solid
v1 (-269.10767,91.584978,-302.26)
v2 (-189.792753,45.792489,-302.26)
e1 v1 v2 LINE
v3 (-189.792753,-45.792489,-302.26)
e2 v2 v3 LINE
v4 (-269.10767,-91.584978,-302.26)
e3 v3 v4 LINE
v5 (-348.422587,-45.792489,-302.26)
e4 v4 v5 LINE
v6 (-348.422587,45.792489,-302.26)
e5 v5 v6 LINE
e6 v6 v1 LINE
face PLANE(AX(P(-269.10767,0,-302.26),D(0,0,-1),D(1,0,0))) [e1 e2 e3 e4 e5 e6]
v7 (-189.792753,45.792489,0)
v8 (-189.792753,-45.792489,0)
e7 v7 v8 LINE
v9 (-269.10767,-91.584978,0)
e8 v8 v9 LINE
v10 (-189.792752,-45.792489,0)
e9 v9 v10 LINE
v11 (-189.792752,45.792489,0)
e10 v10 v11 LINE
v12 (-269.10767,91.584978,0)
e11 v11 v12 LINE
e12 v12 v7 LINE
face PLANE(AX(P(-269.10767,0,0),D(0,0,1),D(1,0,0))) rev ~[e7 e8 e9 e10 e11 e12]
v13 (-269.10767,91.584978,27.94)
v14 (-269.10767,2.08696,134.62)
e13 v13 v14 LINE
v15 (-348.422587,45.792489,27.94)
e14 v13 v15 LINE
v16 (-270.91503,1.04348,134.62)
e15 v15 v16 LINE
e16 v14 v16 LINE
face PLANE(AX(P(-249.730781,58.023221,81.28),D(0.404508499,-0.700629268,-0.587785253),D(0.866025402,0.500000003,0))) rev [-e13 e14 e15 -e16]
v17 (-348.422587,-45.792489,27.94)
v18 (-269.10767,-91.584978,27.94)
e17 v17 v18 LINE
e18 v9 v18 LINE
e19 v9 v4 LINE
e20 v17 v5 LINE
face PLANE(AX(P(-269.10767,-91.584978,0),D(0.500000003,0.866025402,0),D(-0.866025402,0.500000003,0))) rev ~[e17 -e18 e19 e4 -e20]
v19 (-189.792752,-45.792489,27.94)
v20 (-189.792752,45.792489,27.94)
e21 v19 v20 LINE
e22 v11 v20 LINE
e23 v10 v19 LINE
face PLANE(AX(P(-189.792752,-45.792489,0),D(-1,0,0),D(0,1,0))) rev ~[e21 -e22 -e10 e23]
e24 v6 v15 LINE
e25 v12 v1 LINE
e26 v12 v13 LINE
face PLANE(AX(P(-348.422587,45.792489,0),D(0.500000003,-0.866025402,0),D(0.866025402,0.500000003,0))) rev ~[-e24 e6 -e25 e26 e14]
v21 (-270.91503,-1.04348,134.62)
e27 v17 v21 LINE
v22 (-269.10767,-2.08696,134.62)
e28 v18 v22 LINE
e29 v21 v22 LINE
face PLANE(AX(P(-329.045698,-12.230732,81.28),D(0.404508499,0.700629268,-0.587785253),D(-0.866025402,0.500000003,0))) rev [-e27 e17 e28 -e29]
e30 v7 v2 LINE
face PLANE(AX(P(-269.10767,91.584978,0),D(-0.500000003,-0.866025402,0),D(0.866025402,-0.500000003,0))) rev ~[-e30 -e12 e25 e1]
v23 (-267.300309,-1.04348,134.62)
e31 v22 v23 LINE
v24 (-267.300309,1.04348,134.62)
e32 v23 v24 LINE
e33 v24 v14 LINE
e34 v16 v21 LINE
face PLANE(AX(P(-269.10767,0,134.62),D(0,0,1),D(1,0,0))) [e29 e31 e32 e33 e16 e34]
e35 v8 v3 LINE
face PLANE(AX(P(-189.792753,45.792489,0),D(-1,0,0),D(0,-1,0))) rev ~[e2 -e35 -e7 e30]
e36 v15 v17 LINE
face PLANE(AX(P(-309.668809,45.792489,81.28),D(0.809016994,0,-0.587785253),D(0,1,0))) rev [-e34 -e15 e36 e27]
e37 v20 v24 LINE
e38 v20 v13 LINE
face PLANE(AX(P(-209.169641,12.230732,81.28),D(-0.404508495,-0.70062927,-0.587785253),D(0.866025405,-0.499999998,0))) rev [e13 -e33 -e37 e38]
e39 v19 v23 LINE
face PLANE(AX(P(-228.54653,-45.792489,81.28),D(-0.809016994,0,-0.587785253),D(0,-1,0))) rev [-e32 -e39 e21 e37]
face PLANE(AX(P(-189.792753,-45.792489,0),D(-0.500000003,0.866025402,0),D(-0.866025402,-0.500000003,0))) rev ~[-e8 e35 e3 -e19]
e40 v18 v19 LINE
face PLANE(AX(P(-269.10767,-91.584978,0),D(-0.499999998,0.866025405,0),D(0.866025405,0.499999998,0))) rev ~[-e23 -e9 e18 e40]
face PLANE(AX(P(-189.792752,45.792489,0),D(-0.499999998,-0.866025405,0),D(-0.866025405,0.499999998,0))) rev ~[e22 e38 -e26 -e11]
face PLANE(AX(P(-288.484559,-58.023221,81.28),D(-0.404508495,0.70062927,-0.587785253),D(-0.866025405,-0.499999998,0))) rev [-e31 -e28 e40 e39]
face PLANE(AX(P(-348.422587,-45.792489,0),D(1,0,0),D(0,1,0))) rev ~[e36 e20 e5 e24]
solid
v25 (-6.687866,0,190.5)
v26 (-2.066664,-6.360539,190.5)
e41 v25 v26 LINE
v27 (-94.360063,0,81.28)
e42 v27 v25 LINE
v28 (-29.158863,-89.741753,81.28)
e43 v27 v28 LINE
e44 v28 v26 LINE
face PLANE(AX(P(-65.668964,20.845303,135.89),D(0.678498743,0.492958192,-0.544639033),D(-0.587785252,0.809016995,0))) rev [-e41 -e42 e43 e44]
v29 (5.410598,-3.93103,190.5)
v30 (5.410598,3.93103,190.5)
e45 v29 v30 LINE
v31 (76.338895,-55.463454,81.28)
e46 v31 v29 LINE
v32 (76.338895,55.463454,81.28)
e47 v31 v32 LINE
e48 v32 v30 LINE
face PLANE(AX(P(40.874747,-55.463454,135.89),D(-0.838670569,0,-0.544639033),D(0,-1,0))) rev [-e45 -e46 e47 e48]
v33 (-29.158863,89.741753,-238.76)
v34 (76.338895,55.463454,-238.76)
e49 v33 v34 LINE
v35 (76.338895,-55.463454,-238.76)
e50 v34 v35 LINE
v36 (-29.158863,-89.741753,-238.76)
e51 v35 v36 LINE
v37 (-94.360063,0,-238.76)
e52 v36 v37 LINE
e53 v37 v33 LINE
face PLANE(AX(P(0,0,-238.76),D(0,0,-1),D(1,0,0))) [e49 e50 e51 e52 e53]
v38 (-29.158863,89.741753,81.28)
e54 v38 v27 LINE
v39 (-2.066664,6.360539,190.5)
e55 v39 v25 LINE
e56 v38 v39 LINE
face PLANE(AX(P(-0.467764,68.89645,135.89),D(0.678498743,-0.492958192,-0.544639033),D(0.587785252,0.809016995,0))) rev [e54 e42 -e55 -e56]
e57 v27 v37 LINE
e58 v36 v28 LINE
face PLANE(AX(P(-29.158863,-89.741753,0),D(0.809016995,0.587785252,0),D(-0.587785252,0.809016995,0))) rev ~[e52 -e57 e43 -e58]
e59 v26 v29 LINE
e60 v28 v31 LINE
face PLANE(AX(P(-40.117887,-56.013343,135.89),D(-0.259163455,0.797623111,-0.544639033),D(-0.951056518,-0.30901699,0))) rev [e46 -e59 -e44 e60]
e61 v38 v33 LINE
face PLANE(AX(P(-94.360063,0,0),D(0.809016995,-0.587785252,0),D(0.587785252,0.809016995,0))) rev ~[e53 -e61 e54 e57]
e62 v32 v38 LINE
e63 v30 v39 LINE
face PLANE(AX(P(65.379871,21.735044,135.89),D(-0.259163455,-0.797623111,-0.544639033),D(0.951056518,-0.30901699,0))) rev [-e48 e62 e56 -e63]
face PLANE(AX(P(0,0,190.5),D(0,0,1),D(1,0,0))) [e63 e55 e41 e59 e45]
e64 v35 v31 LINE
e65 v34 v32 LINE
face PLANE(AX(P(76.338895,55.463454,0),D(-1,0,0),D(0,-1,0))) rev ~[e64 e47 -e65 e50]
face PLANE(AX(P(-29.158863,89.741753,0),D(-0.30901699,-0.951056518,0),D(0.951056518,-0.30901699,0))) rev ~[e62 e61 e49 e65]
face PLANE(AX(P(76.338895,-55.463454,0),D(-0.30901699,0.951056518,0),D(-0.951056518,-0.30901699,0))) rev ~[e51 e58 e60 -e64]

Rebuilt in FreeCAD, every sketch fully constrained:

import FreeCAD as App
import Part
import Sketcher
from FreeCAD import Vector
Q = App.Units.Quantity


def edges_at(feature, points):
    """Names of the edges that pass closest to the given points."""
    edges = feature.Shape.Edges
    near = lambda p: min(range(len(edges)), key=lambda i: edges[i].distToShape(Part.Vertex(*p))[0])
    return sorted({f"Edge{near(p) + 1}" for p in points})


def add_polygon(sketch, points):
    """Adds a closed chain of lines whose ends are joined by coincident constraints."""
    first, n = sketch.GeometryCount, len(points)
    for a, b in zip(points, points[1:] + points[:1]):
        sketch.addGeometry(Part.LineSegment(App.Vector(*a, 0), App.Vector(*b, 0)), False)
    for i in range(n):
        sketch.addConstraint(Sketcher.Constraint("Coincident", first + i, 2, first + (i + 1) % n, 1))

doc = App.newDocument("Part")
body = doc.addObject("PartDesign::Body", "Body")

sketch1 = body.newObject("Sketcher::SketchObject", "Sketch")
sketch1.AttachmentSupport = (doc.getObject("XY_Plane"), [""])
sketch1.MapMode = "FlatFace"
add_polygon(sketch1, [(76, -55), (76, 55), (-29, 90), (-94, 0), (-29, -90)])
sketch1.addConstraint([
    Sketcher.Constraint("Vertical", 0),
    Sketcher.Constraint("Symmetric", 1, 2, 3, 2, -1),
    Sketcher.Constraint("PointOnObject", 2, 2, -1),
    Sketcher.Constraint("Equal", 1, 2),
    Sketcher.Constraint("Equal", 3, 4),
    Sketcher.Constraint("Angle", 1, Q("162 deg")),
    Sketcher.Constraint("Angle", 2, Q("-126 deg")),
    Sketcher.Constraint("DistanceY", 0, 2, 1, 2, Q("34.278299 mm")),
    Sketcher.Constraint("DistanceX", -1, 1, 0, 2, Q("76.338895 mm")),
])
pad1 = body.newObject("PartDesign::Pad", "Pad")
pad1.Profile = sketch1
pad1.Length = Q("7.5 in")
doc.recompute()

chamfer = body.newObject("PartDesign::Chamfer", "Chamfer")
chamfer.Base = (pad1, edges_at(pad1, [
    (-61.759, -44.871, 190.5),
    (23.59, -72.603, 190.5),
    (76.339, 0, 190.5),
    (23.59, 72.603, 190.5),
    (-61.759, 44.871, 190.5),
]))
chamfer.ChamferType = "Two distances"
chamfer.Size = Q("4.3 in")
chamfer.Size2 = 70.928297

sketch2 = body.newObject("Sketcher::SketchObject", "Sketch001")
sketch2.AttachmentSupport = (doc.getObject("XY_Plane"), [""])
sketch2.MapMode = "FlatFace"
add_polygon(sketch2, [(-29, -90), (-94, 0), (-29, 90), (76, 55), (76, -55)])
sketch2.addConstraint([
    Sketcher.Constraint("Vertical", 3),
    Sketcher.Constraint("Symmetric", 1, 2, 4, 2, -1),
    Sketcher.Constraint("PointOnObject", 0, 2, -1),
    Sketcher.Constraint("Equal", 1, 2),
    Sketcher.Constraint("Equal", 2, 4),
    Sketcher.Constraint("Angle", 0, Q("126 deg")),
    Sketcher.Constraint("Angle", 2, Q("-18 deg")),
    Sketcher.Constraint("DistanceX", 0, 2, 1, 2, Q("65.2012 mm")),
    Sketcher.Constraint("DistanceX", 0, 2, -1, 1, Q("94.360063 mm")),
])
pad2 = body.newObject("PartDesign::Pad", "Pad001")
pad2.Profile = sketch2
pad2.Length = Q("9.4 in")
pad2.Reversed = True
body2 = doc.addObject("PartDesign::Body", "Body001")

sketch3 = body2.newObject("Sketcher::SketchObject", "Sketch002")
sketch3.AttachmentSupport = (doc.getObject("XY_Plane001"), [""])
sketch3.MapMode = "FlatFace"
add_polygon(sketch3, [(-190, -46), (-190, 46), (-269, 92), (-348, 46), (-348, -46), (-269, -92)])
sketch3.addConstraint([
    Sketcher.Constraint("Vertical", 0),
    Sketcher.Constraint("Vertical", 3),
    Sketcher.Constraint("Symmetric", 1, 2, 4, 2, -1),
    Sketcher.Constraint("Parallel", 1, 4),
    Sketcher.Constraint("Parallel", 2, 5),
    Sketcher.Constraint("Horizontal", 0, 2, 2, 2),
    Sketcher.Constraint("Horizontal", 3, 2, 5, 2),
    Sketcher.Constraint("Angle", 1, Q("150 deg")),
    Sketcher.Constraint("DistanceY", 0, 1, 0, 2, Q("91.584978 mm")),
    Sketcher.Constraint("Distance", 1, Q("91.584978 mm")),
    Sketcher.Constraint("DistanceX", 0, 2, -1, 1, Q("189.792752 mm")),
])
pad3 = body2.newObject("PartDesign::Pad", "Pad002")
pad3.Profile = sketch3
pad3.Length = Q("5.3 in")
doc.recompute()

chamfer2 = body2.newObject("PartDesign::Chamfer", "Chamfer001")
chamfer2.Base = (pad3, edges_at(pad3, [
    (-308.765, -68.689, 134.62),
    (-229.45, -68.689, 134.62),
    (-189.793, 0, 134.62),
    (-229.45, 68.689, 134.62),
    (-308.765, 68.689, 134.62),
    (-348.423, 0, 134.62),
]))
chamfer2.ChamferType = "Two distances"
chamfer2.Size = Q("4.2 in")
chamfer2.Size2 = 77.507557

sketch4 = body2.newObject("Sketcher::SketchObject", "Sketch003")
sketch4.AttachmentSupport = (doc.getObject("XY_Plane001"), [""])
sketch4.MapMode = "FlatFace"
add_polygon(sketch4, [(-190, 46), (-190, -46), (-269, -92), (-348, -46), (-348, 46), (-269, 92)])
sketch4.addConstraint([
    Sketcher.Constraint("Vertical", 0),
    Sketcher.Constraint("Vertical", 3),
    Sketcher.Constraint("Symmetric", 1, 2, 4, 2, -1),
    Sketcher.Constraint("Parallel", 1, 4),
    Sketcher.Constraint("Parallel", 2, 5),
    Sketcher.Constraint("Horizontal", 0, 2, 2, 2),
    Sketcher.Constraint("Horizontal", 3, 2, 5, 2),
    Sketcher.Constraint("Angle", 1, Q("-150 deg")),
    Sketcher.Constraint("DistanceY", 0, 2, 0, 1, Q("91.584978 mm")),
    Sketcher.Constraint("DistanceX", 1, 2, -1, 1, Q("269.10767 mm")),
    Sketcher.Constraint("DistanceY", 1, 2, -1, 1, Q("91.584978 mm")),
])
pad4 = body2.newObject("PartDesign::Pad", "Pad003")
pad4.Profile = sketch4
pad4.Length = Q("11.9 in")
pad4.Reversed = True

doc.recompute()
